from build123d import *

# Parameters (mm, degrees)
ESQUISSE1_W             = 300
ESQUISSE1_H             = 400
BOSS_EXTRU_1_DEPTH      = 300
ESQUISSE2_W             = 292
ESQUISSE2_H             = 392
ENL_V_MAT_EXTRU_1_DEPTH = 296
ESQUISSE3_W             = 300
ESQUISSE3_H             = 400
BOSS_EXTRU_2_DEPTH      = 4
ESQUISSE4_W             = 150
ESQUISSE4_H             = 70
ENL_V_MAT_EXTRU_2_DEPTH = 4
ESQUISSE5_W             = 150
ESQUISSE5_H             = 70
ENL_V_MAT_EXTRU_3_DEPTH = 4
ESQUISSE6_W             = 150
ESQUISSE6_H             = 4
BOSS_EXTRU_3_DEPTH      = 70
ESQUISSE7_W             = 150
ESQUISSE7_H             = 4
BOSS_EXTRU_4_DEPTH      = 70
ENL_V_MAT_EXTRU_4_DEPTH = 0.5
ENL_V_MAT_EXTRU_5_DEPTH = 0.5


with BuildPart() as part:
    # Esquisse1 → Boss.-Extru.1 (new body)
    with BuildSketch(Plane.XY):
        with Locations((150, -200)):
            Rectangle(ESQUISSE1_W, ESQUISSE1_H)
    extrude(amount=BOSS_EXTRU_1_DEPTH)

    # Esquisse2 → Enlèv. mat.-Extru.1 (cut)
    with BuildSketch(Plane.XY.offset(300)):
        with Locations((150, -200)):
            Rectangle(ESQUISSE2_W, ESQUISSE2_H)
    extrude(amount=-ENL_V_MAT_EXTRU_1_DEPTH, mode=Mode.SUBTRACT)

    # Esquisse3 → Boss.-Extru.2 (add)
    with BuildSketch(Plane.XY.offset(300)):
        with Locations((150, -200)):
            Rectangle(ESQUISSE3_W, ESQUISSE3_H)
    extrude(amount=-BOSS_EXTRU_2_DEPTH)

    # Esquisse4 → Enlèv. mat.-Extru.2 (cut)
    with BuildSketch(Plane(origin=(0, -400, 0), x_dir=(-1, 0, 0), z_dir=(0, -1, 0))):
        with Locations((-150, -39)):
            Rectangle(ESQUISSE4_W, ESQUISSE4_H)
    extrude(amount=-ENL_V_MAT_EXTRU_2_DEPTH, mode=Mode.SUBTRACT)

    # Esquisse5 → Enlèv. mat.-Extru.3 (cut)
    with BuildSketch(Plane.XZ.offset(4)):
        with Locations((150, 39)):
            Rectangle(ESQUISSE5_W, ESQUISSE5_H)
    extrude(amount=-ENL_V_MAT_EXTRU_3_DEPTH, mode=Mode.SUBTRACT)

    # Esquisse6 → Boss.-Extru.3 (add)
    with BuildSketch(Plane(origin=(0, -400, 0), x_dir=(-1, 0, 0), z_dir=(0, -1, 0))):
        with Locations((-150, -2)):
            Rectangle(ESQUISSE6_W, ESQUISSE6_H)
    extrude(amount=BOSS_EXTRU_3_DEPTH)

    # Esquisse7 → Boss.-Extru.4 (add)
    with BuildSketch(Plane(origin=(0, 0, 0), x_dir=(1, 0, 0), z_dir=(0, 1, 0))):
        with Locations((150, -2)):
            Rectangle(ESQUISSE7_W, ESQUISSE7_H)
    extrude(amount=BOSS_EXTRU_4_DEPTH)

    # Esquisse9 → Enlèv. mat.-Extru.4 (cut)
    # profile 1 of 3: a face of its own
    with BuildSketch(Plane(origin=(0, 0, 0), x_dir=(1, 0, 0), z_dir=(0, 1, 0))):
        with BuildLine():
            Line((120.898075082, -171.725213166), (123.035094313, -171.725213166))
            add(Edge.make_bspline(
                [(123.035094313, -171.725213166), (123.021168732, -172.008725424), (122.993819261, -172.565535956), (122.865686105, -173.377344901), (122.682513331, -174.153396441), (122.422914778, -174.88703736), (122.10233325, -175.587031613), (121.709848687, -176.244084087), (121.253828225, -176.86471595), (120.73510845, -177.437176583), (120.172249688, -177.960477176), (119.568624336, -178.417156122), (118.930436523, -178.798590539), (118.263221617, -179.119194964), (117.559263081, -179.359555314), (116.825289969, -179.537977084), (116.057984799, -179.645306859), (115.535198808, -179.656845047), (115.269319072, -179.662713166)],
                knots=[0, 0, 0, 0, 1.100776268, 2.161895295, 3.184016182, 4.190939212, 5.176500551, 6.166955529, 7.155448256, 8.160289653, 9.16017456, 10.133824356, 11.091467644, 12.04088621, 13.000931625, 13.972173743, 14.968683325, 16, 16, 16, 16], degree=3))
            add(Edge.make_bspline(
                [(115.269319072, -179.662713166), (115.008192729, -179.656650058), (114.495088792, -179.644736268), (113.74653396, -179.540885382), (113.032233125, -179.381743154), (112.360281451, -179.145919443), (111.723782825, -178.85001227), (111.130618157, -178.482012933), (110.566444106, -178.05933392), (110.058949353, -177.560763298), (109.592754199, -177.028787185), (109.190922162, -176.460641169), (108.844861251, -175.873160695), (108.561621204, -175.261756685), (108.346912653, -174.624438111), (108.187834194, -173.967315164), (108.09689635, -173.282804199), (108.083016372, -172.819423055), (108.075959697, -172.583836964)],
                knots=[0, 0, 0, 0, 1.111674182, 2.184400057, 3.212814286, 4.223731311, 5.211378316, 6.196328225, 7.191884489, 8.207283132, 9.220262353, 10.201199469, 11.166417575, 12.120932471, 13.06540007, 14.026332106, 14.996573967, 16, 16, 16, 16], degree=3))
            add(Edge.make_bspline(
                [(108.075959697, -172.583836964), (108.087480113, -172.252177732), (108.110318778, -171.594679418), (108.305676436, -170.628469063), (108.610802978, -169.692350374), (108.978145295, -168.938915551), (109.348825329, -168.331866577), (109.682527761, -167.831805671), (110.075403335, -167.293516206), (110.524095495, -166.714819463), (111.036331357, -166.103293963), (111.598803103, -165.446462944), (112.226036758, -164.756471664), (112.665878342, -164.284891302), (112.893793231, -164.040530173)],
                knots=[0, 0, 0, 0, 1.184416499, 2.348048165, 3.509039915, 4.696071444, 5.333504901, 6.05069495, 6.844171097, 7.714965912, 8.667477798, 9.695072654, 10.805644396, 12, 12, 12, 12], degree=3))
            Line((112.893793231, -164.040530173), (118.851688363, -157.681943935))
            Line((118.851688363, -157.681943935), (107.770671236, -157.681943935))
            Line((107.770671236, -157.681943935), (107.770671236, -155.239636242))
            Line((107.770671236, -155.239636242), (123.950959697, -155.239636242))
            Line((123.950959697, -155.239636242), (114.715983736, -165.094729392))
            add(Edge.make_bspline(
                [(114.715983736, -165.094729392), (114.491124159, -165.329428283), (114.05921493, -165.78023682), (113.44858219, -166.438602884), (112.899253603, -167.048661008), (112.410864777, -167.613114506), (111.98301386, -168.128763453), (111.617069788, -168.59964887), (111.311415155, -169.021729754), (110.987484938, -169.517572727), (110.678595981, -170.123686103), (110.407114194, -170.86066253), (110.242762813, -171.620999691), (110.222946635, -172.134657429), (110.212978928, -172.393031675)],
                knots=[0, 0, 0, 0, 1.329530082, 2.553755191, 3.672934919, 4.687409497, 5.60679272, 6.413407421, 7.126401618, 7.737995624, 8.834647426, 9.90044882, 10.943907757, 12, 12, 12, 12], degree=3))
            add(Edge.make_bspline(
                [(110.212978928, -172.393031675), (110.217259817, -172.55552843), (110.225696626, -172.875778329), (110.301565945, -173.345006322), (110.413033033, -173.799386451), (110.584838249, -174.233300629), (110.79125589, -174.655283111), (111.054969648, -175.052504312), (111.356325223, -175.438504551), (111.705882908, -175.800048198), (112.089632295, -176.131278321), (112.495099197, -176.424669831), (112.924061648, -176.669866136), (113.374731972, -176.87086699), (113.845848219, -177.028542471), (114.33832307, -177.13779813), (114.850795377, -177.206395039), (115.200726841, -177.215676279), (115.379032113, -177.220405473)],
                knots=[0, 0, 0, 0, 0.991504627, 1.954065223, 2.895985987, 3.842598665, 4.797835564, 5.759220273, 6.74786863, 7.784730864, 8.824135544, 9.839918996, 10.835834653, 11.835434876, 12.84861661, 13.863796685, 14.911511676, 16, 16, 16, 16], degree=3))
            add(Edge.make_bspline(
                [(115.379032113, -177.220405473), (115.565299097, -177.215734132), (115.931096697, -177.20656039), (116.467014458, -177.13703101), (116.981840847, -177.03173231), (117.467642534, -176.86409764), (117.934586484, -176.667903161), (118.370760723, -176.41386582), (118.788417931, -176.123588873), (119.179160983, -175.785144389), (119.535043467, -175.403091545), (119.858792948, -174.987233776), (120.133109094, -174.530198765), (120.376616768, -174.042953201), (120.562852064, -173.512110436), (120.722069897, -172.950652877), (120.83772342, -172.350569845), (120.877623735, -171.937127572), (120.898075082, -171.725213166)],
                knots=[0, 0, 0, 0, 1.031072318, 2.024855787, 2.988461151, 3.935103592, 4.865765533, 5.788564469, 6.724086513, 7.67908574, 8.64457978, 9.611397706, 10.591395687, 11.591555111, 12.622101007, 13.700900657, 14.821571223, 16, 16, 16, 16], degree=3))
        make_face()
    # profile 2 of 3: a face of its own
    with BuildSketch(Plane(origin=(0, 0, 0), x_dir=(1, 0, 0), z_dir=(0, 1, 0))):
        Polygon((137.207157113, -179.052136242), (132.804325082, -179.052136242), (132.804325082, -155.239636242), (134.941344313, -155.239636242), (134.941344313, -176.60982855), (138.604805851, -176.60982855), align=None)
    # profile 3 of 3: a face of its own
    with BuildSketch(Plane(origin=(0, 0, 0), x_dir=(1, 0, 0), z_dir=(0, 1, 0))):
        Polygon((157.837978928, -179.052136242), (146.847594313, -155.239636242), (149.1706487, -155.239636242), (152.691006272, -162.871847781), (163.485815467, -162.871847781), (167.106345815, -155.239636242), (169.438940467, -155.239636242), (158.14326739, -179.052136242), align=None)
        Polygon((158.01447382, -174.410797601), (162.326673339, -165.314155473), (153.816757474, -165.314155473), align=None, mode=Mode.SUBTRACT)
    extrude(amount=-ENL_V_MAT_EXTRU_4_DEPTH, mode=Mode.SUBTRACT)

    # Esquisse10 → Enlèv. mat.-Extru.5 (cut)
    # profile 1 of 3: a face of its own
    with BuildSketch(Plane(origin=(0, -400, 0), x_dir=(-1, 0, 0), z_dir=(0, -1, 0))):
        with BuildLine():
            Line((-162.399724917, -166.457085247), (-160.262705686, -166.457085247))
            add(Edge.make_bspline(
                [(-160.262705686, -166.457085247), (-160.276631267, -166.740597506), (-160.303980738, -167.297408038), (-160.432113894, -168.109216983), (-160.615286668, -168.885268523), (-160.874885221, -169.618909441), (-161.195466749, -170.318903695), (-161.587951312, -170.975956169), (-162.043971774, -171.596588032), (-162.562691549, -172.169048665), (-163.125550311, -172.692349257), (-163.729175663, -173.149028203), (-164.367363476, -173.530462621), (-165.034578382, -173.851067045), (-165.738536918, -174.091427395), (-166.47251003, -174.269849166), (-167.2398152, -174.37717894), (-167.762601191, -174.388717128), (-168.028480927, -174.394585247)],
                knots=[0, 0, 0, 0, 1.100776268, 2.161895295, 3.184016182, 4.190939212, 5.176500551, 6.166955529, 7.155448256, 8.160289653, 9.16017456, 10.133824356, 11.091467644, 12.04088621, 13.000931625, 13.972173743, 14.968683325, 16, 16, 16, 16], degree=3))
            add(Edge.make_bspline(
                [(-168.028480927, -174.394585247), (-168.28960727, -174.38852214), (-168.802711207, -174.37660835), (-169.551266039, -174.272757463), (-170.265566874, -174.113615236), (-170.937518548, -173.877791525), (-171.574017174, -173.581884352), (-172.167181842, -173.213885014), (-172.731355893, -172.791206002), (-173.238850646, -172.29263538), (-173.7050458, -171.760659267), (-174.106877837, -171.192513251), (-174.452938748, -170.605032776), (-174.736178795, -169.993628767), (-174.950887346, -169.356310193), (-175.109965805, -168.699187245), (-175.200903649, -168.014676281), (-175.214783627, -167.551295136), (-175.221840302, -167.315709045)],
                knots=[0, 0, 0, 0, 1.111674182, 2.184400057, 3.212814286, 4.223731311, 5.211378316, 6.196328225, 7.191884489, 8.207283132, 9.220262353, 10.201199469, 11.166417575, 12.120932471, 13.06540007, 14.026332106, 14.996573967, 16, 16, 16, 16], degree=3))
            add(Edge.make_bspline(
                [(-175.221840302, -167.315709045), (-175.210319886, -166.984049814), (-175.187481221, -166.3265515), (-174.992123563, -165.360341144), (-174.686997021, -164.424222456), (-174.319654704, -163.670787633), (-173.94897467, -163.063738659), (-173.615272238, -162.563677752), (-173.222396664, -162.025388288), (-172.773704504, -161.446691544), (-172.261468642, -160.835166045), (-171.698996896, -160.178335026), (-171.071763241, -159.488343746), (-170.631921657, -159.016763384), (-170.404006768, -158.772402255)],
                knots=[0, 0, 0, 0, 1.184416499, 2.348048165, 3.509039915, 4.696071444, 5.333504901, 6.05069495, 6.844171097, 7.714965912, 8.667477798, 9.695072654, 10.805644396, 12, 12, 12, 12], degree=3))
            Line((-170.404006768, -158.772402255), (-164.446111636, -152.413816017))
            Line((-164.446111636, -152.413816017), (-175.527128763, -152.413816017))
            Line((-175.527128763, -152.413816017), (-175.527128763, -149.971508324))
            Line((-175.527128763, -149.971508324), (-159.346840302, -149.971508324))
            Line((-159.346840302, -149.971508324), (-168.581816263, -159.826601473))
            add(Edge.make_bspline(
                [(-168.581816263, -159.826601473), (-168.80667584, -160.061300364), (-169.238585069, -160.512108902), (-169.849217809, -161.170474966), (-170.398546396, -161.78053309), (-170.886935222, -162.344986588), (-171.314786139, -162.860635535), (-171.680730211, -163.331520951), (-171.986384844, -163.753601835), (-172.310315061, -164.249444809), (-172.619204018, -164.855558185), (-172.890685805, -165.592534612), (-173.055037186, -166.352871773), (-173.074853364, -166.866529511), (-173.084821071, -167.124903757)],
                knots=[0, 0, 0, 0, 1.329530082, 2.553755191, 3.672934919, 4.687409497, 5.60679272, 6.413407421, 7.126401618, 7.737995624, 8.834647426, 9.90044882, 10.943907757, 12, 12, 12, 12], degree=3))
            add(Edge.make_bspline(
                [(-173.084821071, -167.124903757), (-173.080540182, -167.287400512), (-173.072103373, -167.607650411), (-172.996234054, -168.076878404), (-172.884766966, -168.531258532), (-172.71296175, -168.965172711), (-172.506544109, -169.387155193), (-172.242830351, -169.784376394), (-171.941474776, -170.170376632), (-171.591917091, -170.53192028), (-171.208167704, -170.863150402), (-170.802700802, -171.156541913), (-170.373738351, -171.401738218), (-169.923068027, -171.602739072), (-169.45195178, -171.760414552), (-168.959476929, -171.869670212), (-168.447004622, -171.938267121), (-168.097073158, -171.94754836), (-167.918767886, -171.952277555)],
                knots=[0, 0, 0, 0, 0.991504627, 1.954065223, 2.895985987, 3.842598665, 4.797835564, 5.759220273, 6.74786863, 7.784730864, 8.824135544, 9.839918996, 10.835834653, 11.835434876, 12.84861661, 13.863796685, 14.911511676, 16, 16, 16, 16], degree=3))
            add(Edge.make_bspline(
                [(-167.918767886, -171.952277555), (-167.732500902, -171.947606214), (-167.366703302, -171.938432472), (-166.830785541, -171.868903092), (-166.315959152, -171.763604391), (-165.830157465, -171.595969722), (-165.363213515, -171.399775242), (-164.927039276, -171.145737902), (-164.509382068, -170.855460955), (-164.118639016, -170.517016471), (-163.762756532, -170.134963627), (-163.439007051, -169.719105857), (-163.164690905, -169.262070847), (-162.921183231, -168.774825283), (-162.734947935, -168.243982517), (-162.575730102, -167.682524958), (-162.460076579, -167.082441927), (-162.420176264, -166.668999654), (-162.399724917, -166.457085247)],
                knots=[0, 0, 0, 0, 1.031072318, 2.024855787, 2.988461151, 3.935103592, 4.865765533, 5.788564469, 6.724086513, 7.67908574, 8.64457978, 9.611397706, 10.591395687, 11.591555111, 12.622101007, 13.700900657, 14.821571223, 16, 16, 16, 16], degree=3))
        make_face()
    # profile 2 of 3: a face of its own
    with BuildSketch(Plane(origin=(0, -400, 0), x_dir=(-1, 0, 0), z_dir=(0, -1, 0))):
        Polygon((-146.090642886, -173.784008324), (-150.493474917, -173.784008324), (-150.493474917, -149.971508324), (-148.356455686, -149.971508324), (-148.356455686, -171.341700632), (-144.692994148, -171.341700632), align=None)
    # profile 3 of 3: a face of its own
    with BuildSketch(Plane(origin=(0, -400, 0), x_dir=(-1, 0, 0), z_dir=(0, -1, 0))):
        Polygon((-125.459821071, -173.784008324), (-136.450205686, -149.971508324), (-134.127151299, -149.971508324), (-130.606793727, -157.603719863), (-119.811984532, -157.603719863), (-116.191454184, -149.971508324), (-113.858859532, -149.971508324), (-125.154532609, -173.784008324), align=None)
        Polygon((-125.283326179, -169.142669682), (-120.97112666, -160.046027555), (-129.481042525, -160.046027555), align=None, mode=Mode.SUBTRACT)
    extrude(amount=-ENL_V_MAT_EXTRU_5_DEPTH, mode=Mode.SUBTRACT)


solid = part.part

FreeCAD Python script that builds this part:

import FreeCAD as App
import Part
import Sketcher

doc = App.newDocument("Part")
body = doc.addObject("PartDesign::Body", "Body")

# Sketch on XY plane
sketch1 = body.newObject("Sketcher::SketchObject", "Sketch")
sketch1.AttachmentSupport = (doc.getObject("XY_Plane"), [""])
sketch1.MapMode = "FlatFace"
sketch1.addGeometry(Part.LineSegment(App.Vector(0, 0, 0), App.Vector(0, -400, 0)), False)
sketch1.addGeometry(Part.LineSegment(App.Vector(0, -400, 0), App.Vector(300, -400, 0)), False)
sketch1.addGeometry(Part.LineSegment(App.Vector(300, -400, 0), App.Vector(300, 0, 0)), False)
sketch1.addGeometry(Part.LineSegment(App.Vector(300, 0, 0), App.Vector(0, 0, 0)), False)
sketch1.addConstraint(Sketcher.Constraint("Coincident", 0, 2, 1, 1))
sketch1.addConstraint(Sketcher.Constraint("Coincident", 1, 2, 2, 1))
sketch1.addConstraint(Sketcher.Constraint("Coincident", 2, 2, 3, 1))
sketch1.addConstraint(Sketcher.Constraint("Coincident", 3, 2, 0, 1))
sketch1.addConstraint(Sketcher.Constraint("Vertical", 0))
sketch1.addConstraint(Sketcher.Constraint("Horizontal", 1))
sketch1.addConstraint(Sketcher.Constraint("Vertical", 2))
sketch1.addConstraint(Sketcher.Constraint("Horizontal", 3))
sketch1.addConstraint(Sketcher.Constraint("Coincident", 3, 2, -1, 1))
sketch1.addConstraint(Sketcher.Constraint("DistanceX", 1, 1, 1, 2, 300.0))
sketch1.addConstraint(Sketcher.Constraint("DistanceY", 0, 2, 0, 1, 400.0))
pad1 = body.newObject("PartDesign::Pad", "Pad")
pad1.Profile = sketch1
pad1.Length = 300

# Sketch on XY plane
sketch2 = body.newObject("Sketcher::SketchObject", "Sketch001")
sketch2.AttachmentSupport = (doc.getObject("XY_Plane"), [""])
sketch2.MapMode = "FlatFace"
sketch2.AttachmentOffset = App.Placement(App.Vector(0, 0, 300), App.Rotation())
sketch2.addGeometry(Part.LineSegment(App.Vector(4, -4, 0), App.Vector(4, -396, 0)), False)
sketch2.addGeometry(Part.LineSegment(App.Vector(4, -396, 0), App.Vector(296, -396, 0)), False)
sketch2.addGeometry(Part.LineSegment(App.Vector(296, -396, 0), App.Vector(296, -4, 0)), False)
sketch2.addGeometry(Part.LineSegment(App.Vector(296, -4, 0), App.Vector(4, -4, 0)), False)
sketch2.addConstraint(Sketcher.Constraint("Coincident", 0, 2, 1, 1))
sketch2.addConstraint(Sketcher.Constraint("Coincident", 1, 2, 2, 1))
sketch2.addConstraint(Sketcher.Constraint("Coincident", 2, 2, 3, 1))
sketch2.addConstraint(Sketcher.Constraint("Coincident", 3, 2, 0, 1))
sketch2.addConstraint(Sketcher.Constraint("Vertical", 0))
sketch2.addConstraint(Sketcher.Constraint("Horizontal", 1))
sketch2.addConstraint(Sketcher.Constraint("Vertical", 2))
sketch2.addConstraint(Sketcher.Constraint("Horizontal", 3))
sketch2.addConstraint(Sketcher.Constraint("DistanceX", 1, 1, 1, 2, 292.0))
sketch2.addConstraint(Sketcher.Constraint("DistanceY", 0, 2, 0, 1, 392.0))
sketch2.addConstraint(Sketcher.Constraint("DistanceX", -1, 1, 0, 2, 4.0))
sketch2.addConstraint(Sketcher.Constraint("DistanceY", 0, 2, -1, 1, 396.0))
pocket1 = body.newObject("PartDesign::Pocket", "Pocket")
pocket1.Profile = sketch2
pocket1.Length = 296

# Sketch on XY plane
sketch3 = body.newObject("Sketcher::SketchObject", "Sketch002")
sketch3.AttachmentSupport = (doc.getObject("XY_Plane"), [""])
sketch3.MapMode = "FlatFace"
sketch3.AttachmentOffset = App.Placement(App.Vector(0, 0, 300), App.Rotation())
sketch3.addGeometry(Part.LineSegment(App.Vector(0, 0, 0), App.Vector(0, -400, 0)), False)
sketch3.addGeometry(Part.LineSegment(App.Vector(0, -400, 0), App.Vector(300, -400, 0)), False)
sketch3.addGeometry(Part.LineSegment(App.Vector(300, -400, 0), App.Vector(300, 0, 0)), False)
sketch3.addGeometry(Part.LineSegment(App.Vector(300, 0, 0), App.Vector(0, 0, 0)), False)
sketch3.addConstraint(Sketcher.Constraint("Coincident", 0, 2, 1, 1))
sketch3.addConstraint(Sketcher.Constraint("Coincident", 1, 2, 2, 1))
sketch3.addConstraint(Sketcher.Constraint("Coincident", 2, 2, 3, 1))
sketch3.addConstraint(Sketcher.Constraint("Coincident", 3, 2, 0, 1))
sketch3.addConstraint(Sketcher.Constraint("Vertical", 0))
sketch3.addConstraint(Sketcher.Constraint("Horizontal", 1))
sketch3.addConstraint(Sketcher.Constraint("Vertical", 2))
sketch3.addConstraint(Sketcher.Constraint("Horizontal", 3))
sketch3.addConstraint(Sketcher.Constraint("Coincident", 3, 2, -1, 1))
sketch3.addConstraint(Sketcher.Constraint("DistanceX", 1, 1, 1, 2, 300.0))
sketch3.addConstraint(Sketcher.Constraint("DistanceY", 0, 2, 0, 1, 400.0))
pad2 = body.newObject("PartDesign::Pad", "Pad001")
pad2.Profile = sketch3
pad2.Length = 4
pad2.Reversed = True

# Sketch on XZ plane
sketch4 = body.newObject("Sketcher::SketchObject", "Sketch003")
sketch4.AttachmentSupport = (doc.getObject("XZ_Plane"), [""])
sketch4.MapMode = "FlatFace"
sketch4.AttachmentOffset = App.Placement(App.Vector(0, 0, 400), App.Rotation())
sketch4.addGeometry(Part.LineSegment(App.Vector(225, 4, 0), App.Vector(225, 74, 0)), False)
sketch4.addGeometry(Part.LineSegment(App.Vector(225, 74, 0), App.Vector(75, 74, 0)), False)
sketch4.addGeometry(Part.LineSegment(App.Vector(75, 74, 0), App.Vector(75, 4, 0)), False)
sketch4.addGeometry(Part.LineSegment(App.Vector(75, 4, 0), App.Vector(225, 4, 0)), False)
sketch4.addConstraint(Sketcher.Constraint("Coincident", 0, 2, 1, 1))
sketch4.addConstraint(Sketcher.Constraint("Coincident", 1, 2, 2, 1))
sketch4.addConstraint(Sketcher.Constraint("Coincident", 2, 2, 3, 1))
sketch4.addConstraint(Sketcher.Constraint("Coincident", 3, 2, 0, 1))
sketch4.addConstraint(Sketcher.Constraint("Vertical", 0))
sketch4.addConstraint(Sketcher.Constraint("Horizontal", 1))
sketch4.addConstraint(Sketcher.Constraint("Vertical", 2))
sketch4.addConstraint(Sketcher.Constraint("Horizontal", 3))
sketch4.addConstraint(Sketcher.Constraint("DistanceX", 1, 2, 1, 1, 150.0))
sketch4.addConstraint(Sketcher.Constraint("DistanceY", 0, 1, 0, 2, 70.0))
sketch4.addConstraint(Sketcher.Constraint("DistanceX", -1, 1, 0, 2, 225.0))
sketch4.addConstraint(Sketcher.Constraint("DistanceY", -1, 1, 0, 2, 74.0))
pocket2 = body.newObject("PartDesign::Pocket", "Pocket001")
pocket2.Profile = sketch4
pocket2.Length = 4

# Sketch on XZ plane
sketch5 = body.newObject("Sketcher::SketchObject", "Sketch004")
sketch5.AttachmentSupport = (doc.getObject("XZ_Plane"), [""])
sketch5.MapMode = "FlatFace"
sketch5.AttachmentOffset = App.Placement(App.Vector(0, 0, 4), App.Rotation())
sketch5.addGeometry(Part.LineSegment(App.Vector(75, 74, 0), App.Vector(75, 4, 0)), False)
sketch5.addGeometry(Part.LineSegment(App.Vector(75, 4, 0), App.Vector(225, 4, 0)), False)
sketch5.addGeometry(Part.LineSegment(App.Vector(225, 4, 0), App.Vector(225, 74, 0)), False)
sketch5.addGeometry(Part.LineSegment(App.Vector(225, 74, 0), App.Vector(75, 74, 0)), False)
sketch5.addConstraint(Sketcher.Constraint("Coincident", 0, 2, 1, 1))
sketch5.addConstraint(Sketcher.Constraint("Coincident", 1, 2, 2, 1))
sketch5.addConstraint(Sketcher.Constraint("Coincident", 2, 2, 3, 1))
sketch5.addConstraint(Sketcher.Constraint("Coincident", 3, 2, 0, 1))
sketch5.addConstraint(Sketcher.Constraint("Vertical", 0))
sketch5.addConstraint(Sketcher.Constraint("Horizontal", 1))
sketch5.addConstraint(Sketcher.Constraint("Vertical", 2))
sketch5.addConstraint(Sketcher.Constraint("Horizontal", 3))
sketch5.addConstraint(Sketcher.Constraint("DistanceX", 1, 1, 1, 2, 150.0))
sketch5.addConstraint(Sketcher.Constraint("DistanceY", 0, 2, 0, 1, 70.0))
sketch5.addConstraint(Sketcher.Constraint("DistanceX", -1, 1, 0, 2, 75.0))
sketch5.addConstraint(Sketcher.Constraint("DistanceY", -1, 1, 0, 2, 4.0))
pocket3 = body.newObject("PartDesign::Pocket", "Pocket002")
pocket3.Profile = sketch5
pocket3.Length = 4

# Sketch on XZ plane
sketch6 = body.newObject("Sketcher::SketchObject", "Sketch005")
sketch6.AttachmentSupport = (doc.getObject("XZ_Plane"), [""])
sketch6.MapMode = "FlatFace"
sketch6.AttachmentOffset = App.Placement(App.Vector(0, 0, 400), App.Rotation())
sketch6.addGeometry(Part.LineSegment(App.Vector(225, 0, 0), App.Vector(225, 4, 0)), False)
sketch6.addGeometry(Part.LineSegment(App.Vector(225, 4, 0), App.Vector(75, 4, 0)), False)
sketch6.addGeometry(Part.LineSegment(App.Vector(75, 4, 0), App.Vector(75, 0, 0)), False)
sketch6.addGeometry(Part.LineSegment(App.Vector(75, 0, 0), App.Vector(225, 0, 0)), False)
sketch6.addConstraint(Sketcher.Constraint("Coincident", 0, 2, 1, 1))
sketch6.addConstraint(Sketcher.Constraint("Coincident", 1, 2, 2, 1))
sketch6.addConstraint(Sketcher.Constraint("Coincident", 2, 2, 3, 1))
sketch6.addConstraint(Sketcher.Constraint("Coincident", 3, 2, 0, 1))
sketch6.addConstraint(Sketcher.Constraint("Vertical", 0))
sketch6.addConstraint(Sketcher.Constraint("Horizontal", 1))
sketch6.addConstraint(Sketcher.Constraint("Vertical", 2))
sketch6.addConstraint(Sketcher.Constraint("Horizontal", 3))
sketch6.addConstraint(Sketcher.Constraint("PointOnObject", 2, 2, -1))
sketch6.addConstraint(Sketcher.Constraint("DistanceX", 1, 2, 1, 1, 150.0))
sketch6.addConstraint(Sketcher.Constraint("DistanceY", 0, 1, 0, 2, 4.0))
sketch6.addConstraint(Sketcher.Constraint("DistanceX", -1, 1, 0, 2, 225.0))
pad3 = body.newObject("PartDesign::Pad", "Pad002")
pad3.Profile = sketch6
pad3.Length = 70

# Sketch on XZ plane
sketch7 = body.newObject("Sketcher::SketchObject", "Sketch006")
sketch7.AttachmentSupport = (doc.getObject("XZ_Plane"), [""])
sketch7.MapMode = "FlatFace"
sketch7.addGeometry(Part.LineSegment(App.Vector(75, 0, 0), App.Vector(75, 4, 0)), False)
sketch7.addGeometry(Part.LineSegment(App.Vector(75, 4, 0), App.Vector(225, 4, 0)), False)
sketch7.addGeometry(Part.LineSegment(App.Vector(225, 4, 0), App.Vector(225, 0, 0)), False)
sketch7.addGeometry(Part.LineSegment(App.Vector(225, 0, 0), App.Vector(75, 0, 0)), False)
sketch7.addConstraint(Sketcher.Constraint("Coincident", 0, 2, 1, 1))
sketch7.addConstraint(Sketcher.Constraint("Coincident", 1, 2, 2, 1))
sketch7.addConstraint(Sketcher.Constraint("Coincident", 2, 2, 3, 1))
sketch7.addConstraint(Sketcher.Constraint("Coincident", 3, 2, 0, 1))
sketch7.addConstraint(Sketcher.Constraint("Vertical", 0))
sketch7.addConstraint(Sketcher.Constraint("Horizontal", 1))
sketch7.addConstraint(Sketcher.Constraint("Vertical", 2))
sketch7.addConstraint(Sketcher.Constraint("Horizontal", 3))
sketch7.addConstraint(Sketcher.Constraint("PointOnObject", 2, 2, -1))
sketch7.addConstraint(Sketcher.Constraint("DistanceX", 1, 1, 1, 2, 150.0))
sketch7.addConstraint(Sketcher.Constraint("DistanceY", 0, 1, 0, 2, 4.0))
sketch7.addConstraint(Sketcher.Constraint("DistanceX", -1, 1, 0, 2, 75.0))
pad4 = body.newObject("PartDesign::Pad", "Pad003")
pad4.Profile = sketch7
pad4.Length = 70
pad4.Reversed = True

# Sketch on XZ plane
sketch8 = body.newObject("Sketcher::SketchObject", "Sketch007")
sketch8.AttachmentSupport = (doc.getObject("XZ_Plane"), [""])
sketch8.MapMode = "FlatFace"
sketch8.addGeometry(Part.LineSegment(App.Vector(123.035094, 171.725213, 0), App.Vector(120.898075, 171.725213, 0)), False)
sketch8.addGeometry(Part.BSplineCurve([App.Vector(115.379032, 177.220405, 0), App.Vector(115.565299, 177.215734, 0), App.Vector(115.931097, 177.20656, 0), App.Vector(116.467014, 177.137031, 0), App.Vector(116.981841, 177.031732, 0), App.Vector(117.467643, 176.864098, 0), App.Vector(117.934586, 176.667903, 0), App.Vector(118.370761, 176.413866, 0), App.Vector(118.788418, 176.123589, 0), App.Vector(119.179161, 175.785144, 0), App.Vector(119.535043, 175.403092, 0), App.Vector(119.858793, 174.987234, 0), App.Vector(120.133109, 174.530199, 0), App.Vector(120.376617, 174.042953, 0), App.Vector(120.562852, 173.51211, 0), App.Vector(120.72207, 172.950653, 0), App.Vector(120.837723, 172.35057, 0), App.Vector(120.877624, 171.937128, 0), App.Vector(120.898075, 171.725213, 0)], [4, 1, 1, 1, 1, 1, 1, 1, 1, 1, 1, 1, 1, 1, 1, 1, 4], [0, 1.031072318, 2.024855787, 2.988461151, 3.935103592, 4.865765533, 5.788564469, 6.724086513, 7.67908574, 8.64457978, 9.611397706, 10.591395687, 11.591555111, 12.622101007, 13.700900657, 14.821571223, 16], False, 3, [1, 1, 1, 1, 1, 1, 1, 1, 1, 1, 1, 1, 1, 1, 1, 1, 1, 1, 1], False), False)
sketch8.addGeometry(Part.BSplineCurve([App.Vector(110.212979, 172.393032, 0), App.Vector(110.21726, 172.555528, 0), App.Vector(110.225697, 172.875778, 0), App.Vector(110.301566, 173.345006, 0), App.Vector(110.413033, 173.799386, 0), App.Vector(110.584838, 174.233301, 0), App.Vector(110.791256, 174.655283, 0), App.Vector(111.05497, 175.052504, 0), App.Vector(111.356325, 175.438505, 0), App.Vector(111.705883, 175.800048, 0), App.Vector(112.089632, 176.131278, 0), App.Vector(112.495099, 176.42467, 0), App.Vector(112.924062, 176.669866, 0), App.Vector(113.374732, 176.870867, 0), App.Vector(113.845848, 177.028542, 0), App.Vector(114.338323, 177.137798, 0), App.Vector(114.850795, 177.206395, 0), App.Vector(115.200727, 177.215676, 0), App.Vector(115.379032, 177.220405, 0)], [4, 1, 1, 1, 1, 1, 1, 1, 1, 1, 1, 1, 1, 1, 1, 1, 4], [0, 0.991504627, 1.954065223, 2.895985987, 3.842598665, 4.797835564, 5.759220273, 6.74786863, 7.784730864, 8.824135544, 9.839918996, 10.835834653, 11.835434876, 12.84861661, 13.863796685, 14.911511676, 16], False, 3, [1, 1, 1, 1, 1, 1, 1, 1, 1, 1, 1, 1, 1, 1, 1, 1, 1, 1, 1], False), False)
sketch8.addGeometry(Part.BSplineCurve([App.Vector(114.715984, 165.094729, 0), App.Vector(114.491124, 165.329428, 0), App.Vector(114.059215, 165.780237, 0), App.Vector(113.448582, 166.438603, 0), App.Vector(112.899254, 167.048661, 0), App.Vector(112.410865, 167.613115, 0), App.Vector(111.983014, 168.128763, 0), App.Vector(111.61707, 168.599649, 0), App.Vector(111.311415, 169.02173, 0), App.Vector(110.987485, 169.517573, 0), App.Vector(110.678596, 170.123686, 0), App.Vector(110.407114, 170.860663, 0), App.Vector(110.242763, 171.621, 0), App.Vector(110.222947, 172.134657, 0), App.Vector(110.212979, 172.393032, 0)], [4, 1, 1, 1, 1, 1, 1, 1, 1, 1, 1, 1, 4], [0, 1.329530082, 2.553755191, 3.672934919, 4.687409497, 5.60679272, 6.413407421, 7.126401618, 7.737995624, 8.834647426, 9.90044882, 10.943907757, 12], False, 3, [1, 1, 1, 1, 1, 1, 1, 1, 1, 1, 1, 1, 1, 1, 1], False), False)
sketch8.addGeometry(Part.LineSegment(App.Vector(114.715984, 165.094729, 0), App.Vector(123.95096, 155.239636, 0)), False)
sketch8.addGeometry(Part.LineSegment(App.Vector(123.95096, 155.239636, 0), App.Vector(107.770671, 155.239636, 0)), False)
sketch8.addGeometry(Part.LineSegment(App.Vector(107.770671, 155.239636, 0), App.Vector(107.770671, 157.681944, 0)), False)
sketch8.addGeometry(Part.LineSegment(App.Vector(107.770671, 157.681944, 0), App.Vector(118.851688, 157.681944, 0)), False)
sketch8.addGeometry(Part.LineSegment(App.Vector(118.851688, 157.681944, 0), App.Vector(112.893793, 164.04053, 0)), False)
sketch8.addGeometry(Part.BSplineCurve([App.Vector(108.07596, 172.583837, 0), App.Vector(108.08748, 172.252178, 0), App.Vector(108.110319, 171.594679, 0), App.Vector(108.305676, 170.628469, 0), App.Vector(108.610803, 169.69235, 0), App.Vector(108.978145, 168.938916, 0), App.Vector(109.348825, 168.331867, 0), App.Vector(109.682528, 167.831806, 0), App.Vector(110.075403, 167.293516, 0), App.Vector(110.524095, 166.714819, 0), App.Vector(111.036331, 166.103294, 0), App.Vector(111.598803, 165.446463, 0), App.Vector(112.226037, 164.756472, 0), App.Vector(112.665878, 164.284891, 0), App.Vector(112.893793, 164.04053, 0)], [4, 1, 1, 1, 1, 1, 1, 1, 1, 1, 1, 1, 4], [0, 1.184416499, 2.348048165, 3.509039915, 4.696071444, 5.333504901, 6.05069495, 6.844171097, 7.714965912, 8.667477798, 9.695072654, 10.805644396, 12], False, 3, [1, 1, 1, 1, 1, 1, 1, 1, 1, 1, 1, 1, 1, 1, 1], False), False)
sketch8.addGeometry(Part.BSplineCurve([App.Vector(115.269319, 179.662713, 0), App.Vector(115.008193, 179.65665, 0), App.Vector(114.495089, 179.644736, 0), App.Vector(113.746534, 179.540885, 0), App.Vector(113.032233, 179.381743, 0), App.Vector(112.360281, 179.145919, 0), App.Vector(111.723783, 178.850012, 0), App.Vector(111.130618, 178.482013, 0), App.Vector(110.566444, 178.059334, 0), App.Vector(110.058949, 177.560763, 0), App.Vector(109.592754, 177.028787, 0), App.Vector(109.190922, 176.460641, 0), App.Vector(108.844861, 175.873161, 0), App.Vector(108.561621, 175.261757, 0), App.Vector(108.346913, 174.624438, 0), App.Vector(108.187834, 173.967315, 0), App.Vector(108.096896, 173.282804, 0), App.Vector(108.083016, 172.819423, 0), App.Vector(108.07596, 172.583837, 0)], [4, 1, 1, 1, 1, 1, 1, 1, 1, 1, 1, 1, 1, 1, 1, 1, 4], [0, 1.111674182, 2.184400057, 3.212814286, 4.223731311, 5.211378316, 6.196328225, 7.191884489, 8.207283132, 9.220262353, 10.201199469, 11.166417575, 12.120932471, 13.06540007, 14.026332106, 14.996573967, 16], False, 3, [1, 1, 1, 1, 1, 1, 1, 1, 1, 1, 1, 1, 1, 1, 1, 1, 1, 1, 1], False), False)
sketch8.addGeometry(Part.BSplineCurve([App.Vector(123.035094, 171.725213, 0), App.Vector(123.021169, 172.008725, 0), App.Vector(122.993819, 172.565536, 0), App.Vector(122.865686, 173.377345, 0), App.Vector(122.682513, 174.153396, 0), App.Vector(122.422915, 174.887037, 0), App.Vector(122.102333, 175.587032, 0), App.Vector(121.709849, 176.244084, 0), App.Vector(121.253828, 176.864716, 0), App.Vector(120.735108, 177.437177, 0), App.Vector(120.17225, 177.960477, 0), App.Vector(119.568624, 178.417156, 0), App.Vector(118.930437, 178.798591, 0), App.Vector(118.263222, 179.119195, 0), App.Vector(117.559263, 179.359555, 0), App.Vector(116.82529, 179.537977, 0), App.Vector(116.057985, 179.645307, 0), App.Vector(115.535199, 179.656845, 0), App.Vector(115.269319, 179.662713, 0)], [4, 1, 1, 1, 1, 1, 1, 1, 1, 1, 1, 1, 1, 1, 1, 1, 4], [0, 1.100776268, 2.161895295, 3.184016182, 4.190939212, 5.176500551, 6.166955529, 7.155448256, 8.160289653, 9.16017456, 10.133824356, 11.091467644, 12.04088621, 13.000931625, 13.972173743, 14.968683325, 16], False, 3, [1, 1, 1, 1, 1, 1, 1, 1, 1, 1, 1, 1, 1, 1, 1, 1, 1, 1, 1], False), False)
sketch8.addGeometry(Part.LineSegment(App.Vector(132.804325, 179.052136, 0), App.Vector(137.207157, 179.052136, 0)), False)
sketch8.addGeometry(Part.LineSegment(App.Vector(137.207157, 179.052136, 0), App.Vector(138.604806, 176.609829, 0)), False)
sketch8.addGeometry(Part.LineSegment(App.Vector(138.604806, 176.609829, 0), App.Vector(134.941344, 176.609829, 0)), False)
sketch8.addGeometry(Part.LineSegment(App.Vector(134.941344, 176.609829, 0), App.Vector(134.941344, 155.239636, 0)), False)
sketch8.addGeometry(Part.LineSegment(App.Vector(134.941344, 155.239636, 0), App.Vector(132.804325, 155.239636, 0)), False)
sketch8.addGeometry(Part.LineSegment(App.Vector(132.804325, 155.239636, 0), App.Vector(132.804325, 179.052136, 0)), False)
sketch8.addGeometry(Part.LineSegment(App.Vector(146.847594, 155.239636, 0), App.Vector(157.837979, 179.052136, 0)), False)
sketch8.addGeometry(Part.LineSegment(App.Vector(157.837979, 179.052136, 0), App.Vector(158.143267, 179.052136, 0)), False)
sketch8.addGeometry(Part.LineSegment(App.Vector(158.143267, 179.052136, 0), App.Vector(169.43894, 155.239636, 0)), False)
sketch8.addGeometry(Part.LineSegment(App.Vector(169.43894, 155.239636, 0), App.Vector(167.106346, 155.239636, 0)), False)
sketch8.addGeometry(Part.LineSegment(App.Vector(167.106346, 155.239636, 0), App.Vector(163.485815, 162.871848, 0)), False)
sketch8.addGeometry(Part.LineSegment(App.Vector(163.485815, 162.871848, 0), App.Vector(152.691006, 162.871848, 0)), False)
sketch8.addGeometry(Part.LineSegment(App.Vector(152.691006, 162.871848, 0), App.Vector(149.170649, 155.239636, 0)), False)
sketch8.addGeometry(Part.LineSegment(App.Vector(149.170649, 155.239636, 0), App.Vector(146.847594, 155.239636, 0)), False)
sketch8.addGeometry(Part.LineSegment(App.Vector(158.014474, 174.410798, 0), App.Vector(153.816757, 165.314155, 0)), False)
sketch8.addGeometry(Part.LineSegment(App.Vector(153.816757, 165.314155, 0), App.Vector(162.326673, 165.314155, 0)), False)
sketch8.addGeometry(Part.LineSegment(App.Vector(162.326673, 165.314155, 0), App.Vector(158.014474, 174.410798, 0)), False)
sketch8.addConstraint(Sketcher.Constraint("Block", 1))
sketch8.addConstraint(Sketcher.Constraint("Block", 2))
sketch8.addConstraint(Sketcher.Constraint("Block", 3))
sketch8.addConstraint(Sketcher.Constraint("Block", 9))
sketch8.addConstraint(Sketcher.Constraint("Block", 10))
sketch8.addConstraint(Sketcher.Constraint("Block", 11))
sketch8.addConstraint(Sketcher.Constraint("Coincident", 0, 2, 1, 2))
sketch8.addConstraint(Sketcher.Constraint("Coincident", 3, 1, 4, 1))
sketch8.addConstraint(Sketcher.Constraint("Coincident", 4, 2, 5, 1))
sketch8.addConstraint(Sketcher.Constraint("Coincident", 5, 2, 6, 1))
sketch8.addConstraint(Sketcher.Constraint("Coincident", 6, 2, 7, 1))
sketch8.addConstraint(Sketcher.Constraint("Coincident", 7, 2, 8, 1))
sketch8.addConstraint(Sketcher.Constraint("Coincident", 8, 2, 9, 2))
sketch8.addConstraint(Sketcher.Constraint("Coincident", 11, 1, 0, 1))
sketch8.addConstraint(Sketcher.Constraint("Coincident", 12, 2, 13, 1))
sketch8.addConstraint(Sketcher.Constraint("Coincident", 13, 2, 14, 1))
sketch8.addConstraint(Sketcher.Constraint("Coincident", 14, 2, 15, 1))
sketch8.addConstraint(Sketcher.Constraint("Coincident", 15, 2, 16, 1))
sketch8.addConstraint(Sketcher.Constraint("Coincident", 16, 2, 17, 1))
sketch8.addConstraint(Sketcher.Constraint("Coincident", 17, 2, 12, 1))
sketch8.addConstraint(Sketcher.Constraint("Coincident", 18, 2, 19, 1))
sketch8.addConstraint(Sketcher.Constraint("Coincident", 19, 2, 20, 1))
sketch8.addConstraint(Sketcher.Constraint("Coincident", 20, 2, 21, 1))
sketch8.addConstraint(Sketcher.Constraint("Coincident", 21, 2, 22, 1))
sketch8.addConstraint(Sketcher.Constraint("Coincident", 22, 2, 23, 1))
sketch8.addConstraint(Sketcher.Constraint("Coincident", 23, 2, 24, 1))
sketch8.addConstraint(Sketcher.Constraint("Coincident", 24, 2, 25, 1))
sketch8.addConstraint(Sketcher.Constraint("Coincident", 25, 2, 18, 1))
sketch8.addConstraint(Sketcher.Constraint("Coincident", 26, 2, 27, 1))
sketch8.addConstraint(Sketcher.Constraint("Coincident", 27, 2, 28, 1))
sketch8.addConstraint(Sketcher.Constraint("Coincident", 28, 2, 26, 1))
sketch8.addConstraint(Sketcher.Constraint("Horizontal", 5))
sketch8.addConstraint(Sketcher.Constraint("Vertical", 6))
sketch8.addConstraint(Sketcher.Constraint("Horizontal", 7))
sketch8.addConstraint(Sketcher.Constraint("Horizontal", 12))
sketch8.addConstraint(Sketcher.Constraint("Horizontal", 14))
sketch8.addConstraint(Sketcher.Constraint("Vertical", 15))
sketch8.addConstraint(Sketcher.Constraint("Horizontal", 16))
sketch8.addConstraint(Sketcher.Constraint("Vertical", 17))
sketch8.addConstraint(Sketcher.Constraint("Horizontal", 19))
sketch8.addConstraint(Sketcher.Constraint("Horizontal", 21))
sketch8.addConstraint(Sketcher.Constraint("Horizontal", 23))
sketch8.addConstraint(Sketcher.Constraint("Horizontal", 25))
sketch8.addConstraint(Sketcher.Constraint("Horizontal", 27))
sketch8.addConstraint(Sketcher.Constraint("DistanceY", 17, 1, 17, 2, 23.8125))
sketch8.addConstraint(Sketcher.Constraint("DistanceX", 15, 2, 21, 2, 32.165002))
sketch8.addConstraint(Sketcher.Constraint("DistanceX", 5, 2, 5, 1, 16.180288))
sketch8.addConstraint(Sketcher.Constraint("DistanceX", 14, 2, 14, 1, 3.663462))
sketch8.addConstraint(Sketcher.Constraint("DistanceX", 16, 2, 16, 1, 2.137019))
sketch8.addConstraint(Sketcher.Constraint("DistanceX", 19, 1, 19, 2, 0.305288))
sketch8.addConstraint(Sketcher.Constraint("DistanceX", 23, 2, 23, 1, 10.794809))
sketch8.addConstraint(Sketcher.Constraint("DistanceY", 4, 2, 12, 2, 23.8125))
sketch8.addConstraint(Sketcher.Constraint("DistanceY", 8, 2, 13, 2, 12.569298))
sketch8.addConstraint(Sketcher.Constraint("DistanceY", 15, 2, 18, 2, 23.8125))
sketch8.addConstraint(Sketcher.Constraint("DistanceY", 20, 2, 19, 2, 23.8125))
sketch8.addConstraint(Sketcher.Constraint("DistanceX", 28, 2, 27, 2, 4.3122))
sketch8.addConstraint(Sketcher.Constraint("Distance", 22, 8.447419))
sketch8.addConstraint(Sketcher.Constraint("Distance", 26, 10.018469))
sketch8.addConstraint(Sketcher.Constraint("DistanceX", 7, 1, 7, 2, 11.081017))
sketch8.addConstraint(Sketcher.Constraint("DistanceX", 12, 1, 12, 2, 4.402832))
sketch8.addConstraint(Sketcher.Constraint("DistanceX", 21, 2, 21, 1, 2.332595))
sketch8.addConstraint(Sketcher.Constraint("DistanceX", 25, 2, 25, 1, 2.323054))
sketch8.addConstraint(Sketcher.Constraint("DistanceX", 27, 1, 27, 2, 8.509916))
sketch8.addConstraint(Sketcher.Constraint("DistanceY", 6, 1, 6, 2, 2.442308))
sketch8.addConstraint(Sketcher.Constraint("DistanceY", 15, 2, 15, 1, 21.370192))
sketch8.addConstraint(Sketcher.Constraint("DistanceX", -1, 1, 4, 2, 123.95096))
sketch8.addConstraint(Sketcher.Constraint("DistanceX", -1, 1, 18, 2, 157.837979))
sketch8.addConstraint(Sketcher.Constraint("DistanceX", -1, 1, 20, 2, 169.43894))
sketch8.addConstraint(Sketcher.Constraint("DistanceX", -1, 1, 24, 2, 149.170649))
sketch8.addConstraint(Sketcher.Constraint("DistanceX", 22, 2, 21, 2, 3.62053))
sketch8.addConstraint(Sketcher.Constraint("DistanceY", 24, 2, 23, 2, 7.632212))
sketch8.addConstraint(Sketcher.Constraint("DistanceX", 23, 2, 26, 2, 1.125751))
sketch8.addConstraint(Sketcher.Constraint("DistanceY", 24, 2, 26, 2, 10.074519))
pocket4 = body.newObject("PartDesign::Pocket", "Pocket003")
pocket4.Profile = sketch8
pocket4.Length = 0.5
pocket4.Reversed = True

# Sketch on XZ plane
sketch9 = body.newObject("Sketcher::SketchObject", "Sketch008")
sketch9.AttachmentSupport = (doc.getObject("XZ_Plane"), [""])
sketch9.MapMode = "FlatFace"
sketch9.AttachmentOffset = App.Placement(App.Vector(0, 0, 400), App.Rotation())
sketch9.addGeometry(Part.LineSegment(App.Vector(160.262706, 166.457085, 0), App.Vector(162.399725, 166.457085, 0)), False)
sketch9.addGeometry(Part.BSplineCurve([App.Vector(167.918768, 171.952278, 0), App.Vector(167.732501, 171.947606, 0), App.Vector(167.366703, 171.938432, 0), App.Vector(166.830786, 171.868903, 0), App.Vector(166.315959, 171.763604, 0), App.Vector(165.830157, 171.59597, 0), App.Vector(165.363214, 171.399775, 0), App.Vector(164.927039, 171.145738, 0), App.Vector(164.509382, 170.855461, 0), App.Vector(164.118639, 170.517016, 0), App.Vector(163.762757, 170.134964, 0), App.Vector(163.439007, 169.719106, 0), App.Vector(163.164691, 169.262071, 0), App.Vector(162.921183, 168.774825, 0), App.Vector(162.734948, 168.243983, 0), App.Vector(162.57573, 167.682525, 0), App.Vector(162.460077, 167.082442, 0), App.Vector(162.420176, 166.669, 0), App.Vector(162.399725, 166.457085, 0)], [4, 1, 1, 1, 1, 1, 1, 1, 1, 1, 1, 1, 1, 1, 1, 1, 4], [0, 1.031072318, 2.024855787, 2.988461151, 3.935103592, 4.865765533, 5.788564469, 6.724086513, 7.67908574, 8.64457978, 9.611397706, 10.591395687, 11.591555111, 12.622101007, 13.700900657, 14.821571223, 16], False, 3, [1, 1, 1, 1, 1, 1, 1, 1, 1, 1, 1, 1, 1, 1, 1, 1, 1, 1, 1], False), False)
sketch9.addGeometry(Part.BSplineCurve([App.Vector(173.084821, 167.124904, 0), App.Vector(173.08054, 167.287401, 0), App.Vector(173.072103, 167.60765, 0), App.Vector(172.996234, 168.076878, 0), App.Vector(172.884767, 168.531259, 0), App.Vector(172.712962, 168.965173, 0), App.Vector(172.506544, 169.387155, 0), App.Vector(172.24283, 169.784376, 0), App.Vector(171.941475, 170.170377, 0), App.Vector(171.591917, 170.53192, 0), App.Vector(171.208168, 170.86315, 0), App.Vector(170.802701, 171.156542, 0), App.Vector(170.373738, 171.401738, 0), App.Vector(169.923068, 171.602739, 0), App.Vector(169.451952, 171.760415, 0), App.Vector(168.959477, 171.86967, 0), App.Vector(168.447005, 171.938267, 0), App.Vector(168.097073, 171.947548, 0), App.Vector(167.918768, 171.952278, 0)], [4, 1, 1, 1, 1, 1, 1, 1, 1, 1, 1, 1, 1, 1, 1, 1, 4], [0, 0.991504627, 1.954065223, 2.895985987, 3.842598665, 4.797835564, 5.759220273, 6.74786863, 7.784730864, 8.824135544, 9.839918996, 10.835834653, 11.835434876, 12.84861661, 13.863796685, 14.911511676, 16], False, 3, [1, 1, 1, 1, 1, 1, 1, 1, 1, 1, 1, 1, 1, 1, 1, 1, 1, 1, 1], False), False)
sketch9.addGeometry(Part.BSplineCurve([App.Vector(168.581816, 159.826601, 0), App.Vector(168.806676, 160.0613, 0), App.Vector(169.238585, 160.512109, 0), App.Vector(169.849218, 161.170475, 0), App.Vector(170.398546, 161.780533, 0), App.Vector(170.886935, 162.344987, 0), App.Vector(171.314786, 162.860636, 0), App.Vector(171.68073, 163.331521, 0), App.Vector(171.986385, 163.753602, 0), App.Vector(172.310315, 164.249445, 0), App.Vector(172.619204, 164.855558, 0), App.Vector(172.890686, 165.592535, 0), App.Vector(173.055037, 166.352872, 0), App.Vector(173.074853, 166.86653, 0), App.Vector(173.084821, 167.124904, 0)], [4, 1, 1, 1, 1, 1, 1, 1, 1, 1, 1, 1, 4], [0, 1.329530082, 2.553755191, 3.672934919, 4.687409497, 5.60679272, 6.413407421, 7.126401618, 7.737995624, 8.834647426, 9.90044882, 10.943907757, 12], False, 3, [1, 1, 1, 1, 1, 1, 1, 1, 1, 1, 1, 1, 1, 1, 1], False), False)
sketch9.addGeometry(Part.LineSegment(App.Vector(168.581816, 159.826601, 0), App.Vector(159.34684, 149.971508, 0)), False)
sketch9.addGeometry(Part.LineSegment(App.Vector(159.34684, 149.971508, 0), App.Vector(175.527129, 149.971508, 0)), False)
sketch9.addGeometry(Part.LineSegment(App.Vector(175.527129, 149.971508, 0), App.Vector(175.527129, 152.413816, 0)), False)
sketch9.addGeometry(Part.LineSegment(App.Vector(175.527129, 152.413816, 0), App.Vector(164.446112, 152.413816, 0)), False)
sketch9.addGeometry(Part.LineSegment(App.Vector(164.446112, 152.413816, 0), App.Vector(170.404007, 158.772402, 0)), False)
sketch9.addGeometry(Part.BSplineCurve([App.Vector(175.22184, 167.315709, 0), App.Vector(175.21032, 166.98405, 0), App.Vector(175.187481, 166.326551, 0), App.Vector(174.992124, 165.360341, 0), App.Vector(174.686997, 164.424222, 0), App.Vector(174.319655, 163.670788, 0), App.Vector(173.948975, 163.063739, 0), App.Vector(173.615272, 162.563678, 0), App.Vector(173.222397, 162.025388, 0), App.Vector(172.773705, 161.446692, 0), App.Vector(172.261469, 160.835166, 0), App.Vector(171.698997, 160.178335, 0), App.Vector(171.071763, 159.488344, 0), App.Vector(170.631922, 159.016763, 0), App.Vector(170.404007, 158.772402, 0)], [4, 1, 1, 1, 1, 1, 1, 1, 1, 1, 1, 1, 4], [0, 1.184416499, 2.348048165, 3.509039915, 4.696071444, 5.333504901, 6.05069495, 6.844171097, 7.714965912, 8.667477798, 9.695072654, 10.805644396, 12], False, 3, [1, 1, 1, 1, 1, 1, 1, 1, 1, 1, 1, 1, 1, 1, 1], False), False)
sketch9.addGeometry(Part.BSplineCurve([App.Vector(168.028481, 174.394585, 0), App.Vector(168.289607, 174.388522, 0), App.Vector(168.802711, 174.376608, 0), App.Vector(169.551266, 174.272757, 0), App.Vector(170.265567, 174.113615, 0), App.Vector(170.937519, 173.877792, 0), App.Vector(171.574017, 173.581884, 0), App.Vector(172.167182, 173.213885, 0), App.Vector(172.731356, 172.791206, 0), App.Vector(173.238851, 172.292635, 0), App.Vector(173.705046, 171.760659, 0), App.Vector(174.106878, 171.192513, 0), App.Vector(174.452939, 170.605033, 0), App.Vector(174.736179, 169.993629, 0), App.Vector(174.950887, 169.35631, 0), App.Vector(175.109966, 168.699187, 0), App.Vector(175.200904, 168.014676, 0), App.Vector(175.214784, 167.551295, 0), App.Vector(175.22184, 167.315709, 0)], [4, 1, 1, 1, 1, 1, 1, 1, 1, 1, 1, 1, 1, 1, 1, 1, 4], [0, 1.111674182, 2.184400057, 3.212814286, 4.223731311, 5.211378316, 6.196328225, 7.191884489, 8.207283132, 9.220262353, 10.201199469, 11.166417575, 12.120932471, 13.06540007, 14.026332106, 14.996573967, 16], False, 3, [1, 1, 1, 1, 1, 1, 1, 1, 1, 1, 1, 1, 1, 1, 1, 1, 1, 1, 1], False), False)
sketch9.addGeometry(Part.BSplineCurve([App.Vector(160.262706, 166.457085, 0), App.Vector(160.276631, 166.740598, 0), App.Vector(160.303981, 167.297408, 0), App.Vector(160.432114, 168.109217, 0), App.Vector(160.615287, 168.885269, 0), App.Vector(160.874885, 169.618909, 0), App.Vector(161.195467, 170.318904, 0), App.Vector(161.587951, 170.975956, 0), App.Vector(162.043972, 171.596588, 0), App.Vector(162.562692, 172.169049, 0), App.Vector(163.12555, 172.692349, 0), App.Vector(163.729176, 173.149028, 0), App.Vector(164.367363, 173.530463, 0), App.Vector(165.034578, 173.851067, 0), App.Vector(165.738537, 174.091427, 0), App.Vector(166.47251, 174.269849, 0), App.Vector(167.239815, 174.377179, 0), App.Vector(167.762601, 174.388717, 0), App.Vector(168.028481, 174.394585, 0)], [4, 1, 1, 1, 1, 1, 1, 1, 1, 1, 1, 1, 1, 1, 1, 1, 4], [0, 1.100776268, 2.161895295, 3.184016182, 4.190939212, 5.176500551, 6.166955529, 7.155448256, 8.160289653, 9.16017456, 10.133824356, 11.091467644, 12.04088621, 13.000931625, 13.972173743, 14.968683325, 16], False, 3, [1, 1, 1, 1, 1, 1, 1, 1, 1, 1, 1, 1, 1, 1, 1, 1, 1, 1, 1], False), False)
sketch9.addGeometry(Part.LineSegment(App.Vector(150.493475, 173.784008, 0), App.Vector(146.090643, 173.784008, 0)), False)
sketch9.addGeometry(Part.LineSegment(App.Vector(146.090643, 173.784008, 0), App.Vector(144.692994, 171.341701, 0)), False)
sketch9.addGeometry(Part.LineSegment(App.Vector(144.692994, 171.341701, 0), App.Vector(148.356456, 171.341701, 0)), False)
sketch9.addGeometry(Part.LineSegment(App.Vector(148.356456, 171.341701, 0), App.Vector(148.356456, 149.971508, 0)), False)
sketch9.addGeometry(Part.LineSegment(App.Vector(148.356456, 149.971508, 0), App.Vector(150.493475, 149.971508, 0)), False)
sketch9.addGeometry(Part.LineSegment(App.Vector(150.493475, 149.971508, 0), App.Vector(150.493475, 173.784008, 0)), False)
sketch9.addGeometry(Part.LineSegment(App.Vector(136.450206, 149.971508, 0), App.Vector(125.459821, 173.784008, 0)), False)
sketch9.addGeometry(Part.LineSegment(App.Vector(125.459821, 173.784008, 0), App.Vector(125.154533, 173.784008, 0)), False)
sketch9.addGeometry(Part.LineSegment(App.Vector(125.154533, 173.784008, 0), App.Vector(113.85886, 149.971508, 0)), False)
sketch9.addGeometry(Part.LineSegment(App.Vector(113.85886, 149.971508, 0), App.Vector(116.191454, 149.971508, 0)), False)
sketch9.addGeometry(Part.LineSegment(App.Vector(116.191454, 149.971508, 0), App.Vector(119.811985, 157.60372, 0)), False)
sketch9.addGeometry(Part.LineSegment(App.Vector(119.811985, 157.60372, 0), App.Vector(130.606794, 157.60372, 0)), False)
sketch9.addGeometry(Part.LineSegment(App.Vector(130.606794, 157.60372, 0), App.Vector(134.127151, 149.971508, 0)), False)
sketch9.addGeometry(Part.LineSegment(App.Vector(134.127151, 149.971508, 0), App.Vector(136.450206, 149.971508, 0)), False)
sketch9.addGeometry(Part.LineSegment(App.Vector(125.283326, 169.14267, 0), App.Vector(129.481043, 160.046028, 0)), False)
sketch9.addGeometry(Part.LineSegment(App.Vector(129.481043, 160.046028, 0), App.Vector(120.971127, 160.046028, 0)), False)
sketch9.addGeometry(Part.LineSegment(App.Vector(120.971127, 160.046028, 0), App.Vector(125.283326, 169.14267, 0)), False)
sketch9.addConstraint(Sketcher.Constraint("Block", 1))
sketch9.addConstraint(Sketcher.Constraint("Block", 2))
sketch9.addConstraint(Sketcher.Constraint("Block", 3))
sketch9.addConstraint(Sketcher.Constraint("Block", 9))
sketch9.addConstraint(Sketcher.Constraint("Block", 10))
sketch9.addConstraint(Sketcher.Constraint("Block", 11))
sketch9.addConstraint(Sketcher.Constraint("Coincident", 0, 2, 1, 2))
sketch9.addConstraint(Sketcher.Constraint("Coincident", 3, 1, 4, 1))
sketch9.addConstraint(Sketcher.Constraint("Coincident", 4, 2, 5, 1))
sketch9.addConstraint(Sketcher.Constraint("Coincident", 5, 2, 6, 1))
sketch9.addConstraint(Sketcher.Constraint("Coincident", 6, 2, 7, 1))
sketch9.addConstraint(Sketcher.Constraint("Coincident", 7, 2, 8, 1))
sketch9.addConstraint(Sketcher.Constraint("Coincident", 8, 2, 9, 2))
sketch9.addConstraint(Sketcher.Constraint("Coincident", 11, 1, 0, 1))
sketch9.addConstraint(Sketcher.Constraint("Coincident", 12, 2, 13, 1))
sketch9.addConstraint(Sketcher.Constraint("Coincident", 13, 2, 14, 1))
sketch9.addConstraint(Sketcher.Constraint("Coincident", 14, 2, 15, 1))
sketch9.addConstraint(Sketcher.Constraint("Coincident", 15, 2, 16, 1))
sketch9.addConstraint(Sketcher.Constraint("Coincident", 16, 2, 17, 1))
sketch9.addConstraint(Sketcher.Constraint("Coincident", 17, 2, 12, 1))
sketch9.addConstraint(Sketcher.Constraint("Coincident", 18, 2, 19, 1))
sketch9.addConstraint(Sketcher.Constraint("Coincident", 19, 2, 20, 1))
sketch9.addConstraint(Sketcher.Constraint("Coincident", 20, 2, 21, 1))
sketch9.addConstraint(Sketcher.Constraint("Coincident", 21, 2, 22, 1))
sketch9.addConstraint(Sketcher.Constraint("Coincident", 22, 2, 23, 1))
sketch9.addConstraint(Sketcher.Constraint("Coincident", 23, 2, 24, 1))
sketch9.addConstraint(Sketcher.Constraint("Coincident", 24, 2, 25, 1))
sketch9.addConstraint(Sketcher.Constraint("Coincident", 25, 2, 18, 1))
sketch9.addConstraint(Sketcher.Constraint("Coincident", 26, 2, 27, 1))
sketch9.addConstraint(Sketcher.Constraint("Coincident", 27, 2, 28, 1))
sketch9.addConstraint(Sketcher.Constraint("Coincident", 28, 2, 26, 1))
sketch9.addConstraint(Sketcher.Constraint("Horizontal", 5))
sketch9.addConstraint(Sketcher.Constraint("Vertical", 6))
sketch9.addConstraint(Sketcher.Constraint("Horizontal", 7))
sketch9.addConstraint(Sketcher.Constraint("Horizontal", 12))
sketch9.addConstraint(Sketcher.Constraint("Horizontal", 14))
sketch9.addConstraint(Sketcher.Constraint("Vertical", 15))
sketch9.addConstraint(Sketcher.Constraint("Horizontal", 16))
sketch9.addConstraint(Sketcher.Constraint("Vertical", 17))
sketch9.addConstraint(Sketcher.Constraint("Horizontal", 19))
sketch9.addConstraint(Sketcher.Constraint("Horizontal", 21))
sketch9.addConstraint(Sketcher.Constraint("Horizontal", 23))
sketch9.addConstraint(Sketcher.Constraint("Horizontal", 25))
sketch9.addConstraint(Sketcher.Constraint("Horizontal", 27))
sketch9.addConstraint(Sketcher.Constraint("DistanceY", 17, 1, 17, 2, 23.8125))
sketch9.addConstraint(Sketcher.Constraint("DistanceX", 21, 2, 15, 2, 32.165002))
sketch9.addConstraint(Sketcher.Constraint("DistanceX", 5, 1, 5, 2, 16.180288))
sketch9.addConstraint(Sketcher.Constraint("DistanceX", 14, 1, 14, 2, 3.663462))
sketch9.addConstraint(Sketcher.Constraint("DistanceX", 16, 1, 16, 2, 2.137019))
sketch9.addConstraint(Sketcher.Constraint("DistanceX", 19, 2, 19, 1, 0.305288))
sketch9.addConstraint(Sketcher.Constraint("DistanceX", 23, 1, 23, 2, 10.794809))
sketch9.addConstraint(Sketcher.Constraint("DistanceY", -1, 1, 13, 2, 171.341701))
sketch9.addConstraint(Sketcher.Constraint("DistanceY", 4, 2, 12, 2, 23.8125))
sketch9.addConstraint(Sketcher.Constraint("DistanceY", 15, 2, 18, 2, 23.8125))
sketch9.addConstraint(Sketcher.Constraint("DistanceY", 20, 2, 19, 2, 23.8125))
sketch9.addConstraint(Sketcher.Constraint("DistanceX", 27, 2, 28, 2, 4.3122))
sketch9.addConstraint(Sketcher.Constraint("Distance", 22, 8.447419))
sketch9.addConstraint(Sketcher.Constraint("Distance", 26, 10.018469))
sketch9.addConstraint(Sketcher.Constraint("DistanceX", 7, 2, 7, 1, 11.081017))
sketch9.addConstraint(Sketcher.Constraint("DistanceX", 12, 2, 12, 1, 4.402832))
sketch9.addConstraint(Sketcher.Constraint("DistanceX", 21, 1, 21, 2, 2.332595))
sketch9.addConstraint(Sketcher.Constraint("DistanceX", 25, 1, 25, 2, 2.323054))
sketch9.addConstraint(Sketcher.Constraint("DistanceX", 27, 2, 27, 1, 8.509916))
sketch9.addConstraint(Sketcher.Constraint("DistanceY", 6, 1, 6, 2, 2.442308))
sketch9.addConstraint(Sketcher.Constraint("DistanceY", 15, 2, 15, 1, 21.370192))
sketch9.addConstraint(Sketcher.Constraint("DistanceX", -1, 1, 4, 2, 159.34684))
sketch9.addConstraint(Sketcher.Constraint("DistanceX", -1, 1, 18, 2, 125.459821))
sketch9.addConstraint(Sketcher.Constraint("DistanceX", -1, 1, 20, 2, 113.85886))
sketch9.addConstraint(Sketcher.Constraint("DistanceY", -1, 1, 22, 2, 157.60372))
sketch9.addConstraint(Sketcher.Constraint("DistanceX", -1, 1, 24, 2, 134.127151))
sketch9.addConstraint(Sketcher.Constraint("DistanceY", -1, 1, 24, 2, 149.971508))
sketch9.addConstraint(Sketcher.Constraint("DistanceY", -1, 1, 28, 2, 169.14267))
sketch9.addConstraint(Sketcher.Constraint("DistanceX", 26, 2, 23, 2, 1.125751))
pocket5 = body.newObject("PartDesign::Pocket", "Pocket004")
pocket5.Profile = sketch9
pocket5.Length = 0.5

doc.recompute()
